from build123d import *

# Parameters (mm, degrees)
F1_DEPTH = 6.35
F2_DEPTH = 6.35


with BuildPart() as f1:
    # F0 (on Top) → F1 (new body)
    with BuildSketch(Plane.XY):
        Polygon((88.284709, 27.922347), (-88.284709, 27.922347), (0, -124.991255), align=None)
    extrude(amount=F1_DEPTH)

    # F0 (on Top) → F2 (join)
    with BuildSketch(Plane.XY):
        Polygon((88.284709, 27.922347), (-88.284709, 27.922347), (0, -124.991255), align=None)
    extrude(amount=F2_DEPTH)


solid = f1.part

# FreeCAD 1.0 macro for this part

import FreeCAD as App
import Part
import Sketcher
Q = App.Units.Quantity


def add_polygon(sketch, points):
    """Adds a closed chain of lines whose ends are joined by coincident constraints."""
    first, n = sketch.GeometryCount, len(points)
    for a, b in zip(points, points[1:] + points[:1]):
        sketch.addGeometry(Part.LineSegment(App.Vector(*a, 0), App.Vector(*b, 0)), False)
    for i in range(n):
        sketch.addConstraint(Sketcher.Constraint("Coincident", first + i, 2, first + (i + 1) % n, 1))

doc = App.newDocument("Part")
body = doc.addObject("PartDesign::Body", "Body")

sketch1 = doc.addObject("Sketcher::SketchObject", "Sketch")
body.addObject(sketch1)
sketch1.AttachmentSupport = (doc.XY_Plane, [""])
sketch1.MapMode = "FlatFace"
add_polygon(sketch1, [(88.284709, 27.922347), (-88.284709, 27.922347), (0, -124.991255)])
sketch1.addConstraint(Sketcher.Constraint("Horizontal", 0))
sketch1.addConstraint(Sketcher.Constraint("PointOnObject", 1, 2, -2))
sketch1.addConstraint(Sketcher.Constraint("Equal", 1, 2))
sketch1.addConstraint(Sketcher.Constraint("Angle", 1, Q("-60 deg")))
sketch1.addConstraint(Sketcher.Constraint("DistanceX", 0, 2, 0, 1, Q("176.569418 mm")))
sketch1.addConstraint(Sketcher.Constraint("DistanceY", -1, 1, 0, 2, Q("27.922347 mm")))
pad1 = doc.addObject("PartDesign::Pad", "Pad")
body.addObject(pad1)
pad1.Profile = sketch1
pad1.Length = Q("0.25 in")

sketch2 = doc.addObject("Sketcher::SketchObject", "Sketch001")
body.addObject(sketch2)
sketch2.AttachmentSupport = (doc.XY_Plane, [""])
sketch2.MapMode = "FlatFace"
add_polygon(sketch2, [(88.284709, 27.922347), (-88.284709, 27.922347), (0, -124.991255)])
sketch2.addConstraint(Sketcher.Constraint("Horizontal", 0))
sketch2.addConstraint(Sketcher.Constraint("PointOnObject", 1, 2, -2))
sketch2.addConstraint(Sketcher.Constraint("Equal", 1, 2))
sketch2.addConstraint(Sketcher.Constraint("Angle", 1, Q("-60 deg")))
sketch2.addConstraint(Sketcher.Constraint("DistanceX", 0, 2, 0, 1, Q("176.569418 mm")))
sketch2.addConstraint(Sketcher.Constraint("DistanceY", -1, 1, 0, 2, Q("27.922347 mm")))
pad2 = doc.addObject("PartDesign::Pad", "Pad001")
body.addObject(pad2)
pad2.Profile = sketch2
pad2.Length = Q("0.25 in")

doc.recompute()
